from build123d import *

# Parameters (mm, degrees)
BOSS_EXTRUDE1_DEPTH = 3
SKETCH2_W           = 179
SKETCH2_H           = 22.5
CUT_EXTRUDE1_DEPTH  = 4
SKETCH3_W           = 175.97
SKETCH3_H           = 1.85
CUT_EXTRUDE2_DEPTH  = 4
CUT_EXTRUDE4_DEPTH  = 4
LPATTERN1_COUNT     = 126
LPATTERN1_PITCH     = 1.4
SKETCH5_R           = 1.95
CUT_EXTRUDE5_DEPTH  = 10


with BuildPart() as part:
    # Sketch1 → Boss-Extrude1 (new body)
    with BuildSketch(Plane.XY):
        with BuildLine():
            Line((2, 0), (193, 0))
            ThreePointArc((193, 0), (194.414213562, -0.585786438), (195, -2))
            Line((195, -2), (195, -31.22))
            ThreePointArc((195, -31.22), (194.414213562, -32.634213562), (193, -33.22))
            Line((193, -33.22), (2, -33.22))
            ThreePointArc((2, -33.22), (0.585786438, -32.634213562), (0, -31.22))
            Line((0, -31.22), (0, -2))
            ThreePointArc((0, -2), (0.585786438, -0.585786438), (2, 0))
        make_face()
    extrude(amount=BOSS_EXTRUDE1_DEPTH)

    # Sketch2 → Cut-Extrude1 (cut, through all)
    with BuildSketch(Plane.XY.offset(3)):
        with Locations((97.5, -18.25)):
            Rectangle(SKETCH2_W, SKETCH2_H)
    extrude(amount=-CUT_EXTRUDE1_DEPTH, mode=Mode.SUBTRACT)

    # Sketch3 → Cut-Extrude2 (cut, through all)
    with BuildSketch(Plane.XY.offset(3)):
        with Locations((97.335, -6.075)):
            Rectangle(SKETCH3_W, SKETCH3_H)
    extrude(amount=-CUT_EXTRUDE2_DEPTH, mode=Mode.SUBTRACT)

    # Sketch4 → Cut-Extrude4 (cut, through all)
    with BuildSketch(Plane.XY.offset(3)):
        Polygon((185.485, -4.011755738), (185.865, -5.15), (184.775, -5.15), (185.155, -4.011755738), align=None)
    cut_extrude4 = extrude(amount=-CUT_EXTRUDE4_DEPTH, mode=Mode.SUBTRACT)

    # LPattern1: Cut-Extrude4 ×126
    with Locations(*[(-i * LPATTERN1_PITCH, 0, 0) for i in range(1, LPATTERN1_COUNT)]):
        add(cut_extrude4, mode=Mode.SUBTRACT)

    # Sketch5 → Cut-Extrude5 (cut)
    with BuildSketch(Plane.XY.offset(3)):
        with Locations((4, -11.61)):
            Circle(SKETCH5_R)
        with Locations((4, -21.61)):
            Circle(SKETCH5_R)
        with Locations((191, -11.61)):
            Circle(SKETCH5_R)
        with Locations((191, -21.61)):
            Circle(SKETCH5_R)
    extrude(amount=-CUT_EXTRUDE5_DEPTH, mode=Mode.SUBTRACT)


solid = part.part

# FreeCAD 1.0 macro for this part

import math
import FreeCAD as App
import Part
import Sketcher
from FreeCAD import Vector


def add_polygon(sketch, points):
    """Adds a closed chain of lines whose ends are joined by coincident constraints."""
    first, n = sketch.GeometryCount, len(points)
    for a, b in zip(points, points[1:] + points[:1]):
        sketch.addGeometry(Part.LineSegment(App.Vector(*a, 0), App.Vector(*b, 0)), False)
    for i in range(n):
        sketch.addConstraint(Sketcher.Constraint("Coincident", first + i, 2, first + (i + 1) % n, 1))

doc = App.newDocument("Part")
body = doc.addObject("PartDesign::Body", "Body")

# Sketch on XY plane
sketch1 = doc.addObject("Sketcher::SketchObject", "Sketch")
body.addObject(sketch1)
sketch1.AttachmentSupport = (doc.XY_Plane, [""])
sketch1.MapMode = "FlatFace"
sketch1.addGeometry([
    Part.LineSegment(Vector(193, 0, 0), Vector(2, 0, 0)),  # 0
    Part.ArcOfCircle(Part.Circle(Vector(2, -2, 0), Vector(0, 0, 1), 2), math.radians(90), math.radians(180)),  # 1
    Part.LineSegment(Vector(0, -2, 0), Vector(0, -31.2, 0)),  # 2
    Part.ArcOfCircle(Part.Circle(Vector(2, -31.2, 0), Vector(0, 0, 1), 2), math.radians(-180), math.radians(-90)),  # 3
    Part.LineSegment(Vector(2, -33.2, 0), Vector(193, -33.2, 0)),  # 4
    Part.ArcOfCircle(Part.Circle(Vector(193, -31.2, 0), Vector(0, 0, 1), 2), math.radians(-90), math.radians(0)),  # 5
    Part.LineSegment(Vector(195, -31.2, 0), Vector(195, -2, 0)),  # 6
    Part.ArcOfCircle(Part.Circle(Vector(193, -2, 0), Vector(0, 0, 1), 2), math.radians(0), math.radians(90)),  # 7
], False)
sketch1.addConstraint([
    Sketcher.Constraint("Tangent", 0, 2, 1, 1),
    Sketcher.Constraint("Tangent", 1, 2, 2, 1),
    Sketcher.Constraint("Tangent", 2, 2, 3, 1),
    Sketcher.Constraint("Tangent", 3, 2, 4, 1),
    Sketcher.Constraint("Tangent", 4, 2, 5, 1),
    Sketcher.Constraint("Tangent", 5, 2, 6, 1),
    Sketcher.Constraint("Tangent", 6, 2, 7, 1),
    Sketcher.Constraint("Tangent", 7, 2, 0, 1),
    Sketcher.Constraint("Horizontal", 0),
    Sketcher.Constraint("Vertical", 2),
    Sketcher.Constraint("Horizontal", 4),
    Sketcher.Constraint("Vertical", 6),
    Sketcher.Constraint("Equal", 1, 3),
    Sketcher.Constraint("Equal", 3, 5),
    Sketcher.Constraint("Equal", 5, 7),
    Sketcher.Constraint("PointOnObject", 0, 2, -1),
    Sketcher.Constraint("PointOnObject", 1, 2, -2),
    Sketcher.Constraint("Radius", 1, 2.0),
    Sketcher.Constraint("DistanceX", 0, 2, 0, 1, 191.0),
    Sketcher.Constraint("DistanceY", 2, 2, 2, 1, 29.22),
])
pad1 = doc.addObject("PartDesign::Pad", "Pad")
body.addObject(pad1)
pad1.Profile = sketch1
pad1.Length = 3

# Sketch on XY plane
sketch2 = doc.addObject("Sketcher::SketchObject", "Sketch001")
body.addObject(sketch2)
sketch2.AttachmentSupport = (doc.XY_Plane, [""])
sketch2.MapMode = "FlatFace"
sketch2.AttachmentOffset = App.Placement(Vector(0, 0, 3), App.Rotation())
add_polygon(sketch2, [(8, -7), (8, -30), (187, -30), (187, -7)])  # lines 0-3
sketch2.addConstraint([
    Sketcher.Constraint("Vertical", 0),
    Sketcher.Constraint("Horizontal", 1),
    Sketcher.Constraint("Vertical", 2),
    Sketcher.Constraint("Horizontal", 3),
    Sketcher.Constraint("DistanceX", 1, 1, 1, 2, 179.0),
    Sketcher.Constraint("DistanceY", 0, 2, 0, 1, 22.5),
    Sketcher.Constraint("DistanceX", -1, 1, 0, 2, 8.0),
    Sketcher.Constraint("DistanceY", 2, 2, -1, 1, 7.0),
])
pocket1 = doc.addObject("PartDesign::Pocket", "Pocket")
body.addObject(pocket1)
pocket1.Profile = sketch2
pocket1.Type = "ThroughAll"

# Sketch on XY plane
sketch3 = doc.addObject("Sketcher::SketchObject", "Sketch002")
body.addObject(sketch3)
sketch3.AttachmentSupport = (doc.XY_Plane, [""])
sketch3.MapMode = "FlatFace"
sketch3.AttachmentOffset = App.Placement(Vector(0, 0, 3), App.Rotation())
add_polygon(sketch3, [(9.3, -5.2), (9.3, -7), (185.3, -7), (185.3, -5.2)])  # lines 0-3
sketch3.addConstraint([
    Sketcher.Constraint("Vertical", 0),
    Sketcher.Constraint("Horizontal", 1),
    Sketcher.Constraint("Vertical", 2),
    Sketcher.Constraint("Horizontal", 3),
    Sketcher.Constraint("DistanceY", 0, 2, -1, 1, 7.0),
    Sketcher.Constraint("DistanceX", 1, 1, 1, 2, 175.97),
    Sketcher.Constraint("DistanceY", 0, 2, 0, 1, 1.85),
    Sketcher.Constraint("DistanceX", -1, 1, 0, 2, 9.35),
])
pocket2 = doc.addObject("PartDesign::Pocket", "Pocket001")
body.addObject(pocket2)
pocket2.Profile = sketch3
pocket2.Type = "ThroughAll"

# Sketch on XY plane
sketch4 = doc.addObject("Sketcher::SketchObject", "Sketch003")
body.addObject(sketch4)
sketch4.AttachmentSupport = (doc.XY_Plane, [""])
sketch4.MapMode = "FlatFace"
sketch4.AttachmentOffset = App.Placement(Vector(0, 0, 3), App.Rotation())
add_polygon(sketch4, [(185.87, -5.15), (185.49, -4.01), (185.16, -4.01), (184.78, -5.15)])  # lines 0-3
sketch4.addConstraint([
    Sketcher.Constraint("Horizontal", 1),
    Sketcher.Constraint("Horizontal", 3),
    Sketcher.Constraint("Equal", 0, 2),
    Sketcher.Constraint("Distance", 0, 1.2),
    Sketcher.Constraint("DistanceX", 1, 2, 1, 1, 0.33),
    Sketcher.Constraint("DistanceX", 3, 1, 3, 2, 1.09),
    Sketcher.Constraint("DistanceY", 2, 2, -1, 1, 5.15),
    Sketcher.Constraint("DistanceX", -1, 1, 0, 2, 185.485),
])
pocket3 = doc.addObject("PartDesign::Pocket", "Pocket002")
body.addObject(pocket3)
pocket3.Profile = sketch4
pocket3.Type = "ThroughAll"
doc.recompute()

linearpattern = doc.addObject("PartDesign::LinearPattern", "LinearPattern")
body.addObject(linearpattern)
linearpattern.Originals = [pocket3]
linearpattern.Direction = (doc.X_Axis, [""])
linearpattern.Mode = "offset"
linearpattern.Offset = 1.4
linearpattern.Occurrences = 126
linearpattern.Reversed = True
body.Tip = linearpattern

# Sketch on XY plane
sketch5 = doc.addObject("Sketcher::SketchObject", "Sketch004")
body.addObject(sketch5)
sketch5.AttachmentSupport = (doc.XY_Plane, [""])
sketch5.MapMode = "FlatFace"
sketch5.AttachmentOffset = App.Placement(Vector(0, 0, 3), App.Rotation())
sketch5.addGeometry([
    Part.Circle(Vector(4, -11.6, 0), Vector(0, 0, 1), 1.9),
    Part.Circle(Vector(4, -21.6, 0), Vector(0, 0, 1), 1.9),
    Part.Circle(Vector(191, -11.6, 0), Vector(0, 0, 1), 1.9),
    Part.Circle(Vector(191, -21.6, 0), Vector(0, 0, 1), 1.9),
], False)
sketch5.addConstraint([
    Sketcher.Constraint("Equal", 0, 1),
    Sketcher.Constraint("Equal", 1, 2),
    Sketcher.Constraint("Equal", 2, 3),
    Sketcher.Constraint("Horizontal", 0, 3, 2, 3),
    Sketcher.Constraint("Horizontal", 1, 3, 3, 3),
    Sketcher.Constraint("Vertical", 0, 3, 1, 3),
    Sketcher.Constraint("Vertical", 2, 3, 3, 3),
    Sketcher.Constraint("Diameter", 0, 3.9),
    Sketcher.Constraint("DistanceX", -1, 1, 0, 3, 4.0),
    Sketcher.Constraint("DistanceX", -1, 1, 2, 3, 191.0),
    Sketcher.Constraint("DistanceY", 1, 3, 0, 3, 10.0),
    Sketcher.Constraint("DistanceY", 0, 3, -1, 1, 11.61),
])
pocket4 = doc.addObject("PartDesign::Pocket", "Pocket003")
body.addObject(pocket4)
pocket4.Profile = sketch5
pocket4.Length = 10

doc.recompute()
